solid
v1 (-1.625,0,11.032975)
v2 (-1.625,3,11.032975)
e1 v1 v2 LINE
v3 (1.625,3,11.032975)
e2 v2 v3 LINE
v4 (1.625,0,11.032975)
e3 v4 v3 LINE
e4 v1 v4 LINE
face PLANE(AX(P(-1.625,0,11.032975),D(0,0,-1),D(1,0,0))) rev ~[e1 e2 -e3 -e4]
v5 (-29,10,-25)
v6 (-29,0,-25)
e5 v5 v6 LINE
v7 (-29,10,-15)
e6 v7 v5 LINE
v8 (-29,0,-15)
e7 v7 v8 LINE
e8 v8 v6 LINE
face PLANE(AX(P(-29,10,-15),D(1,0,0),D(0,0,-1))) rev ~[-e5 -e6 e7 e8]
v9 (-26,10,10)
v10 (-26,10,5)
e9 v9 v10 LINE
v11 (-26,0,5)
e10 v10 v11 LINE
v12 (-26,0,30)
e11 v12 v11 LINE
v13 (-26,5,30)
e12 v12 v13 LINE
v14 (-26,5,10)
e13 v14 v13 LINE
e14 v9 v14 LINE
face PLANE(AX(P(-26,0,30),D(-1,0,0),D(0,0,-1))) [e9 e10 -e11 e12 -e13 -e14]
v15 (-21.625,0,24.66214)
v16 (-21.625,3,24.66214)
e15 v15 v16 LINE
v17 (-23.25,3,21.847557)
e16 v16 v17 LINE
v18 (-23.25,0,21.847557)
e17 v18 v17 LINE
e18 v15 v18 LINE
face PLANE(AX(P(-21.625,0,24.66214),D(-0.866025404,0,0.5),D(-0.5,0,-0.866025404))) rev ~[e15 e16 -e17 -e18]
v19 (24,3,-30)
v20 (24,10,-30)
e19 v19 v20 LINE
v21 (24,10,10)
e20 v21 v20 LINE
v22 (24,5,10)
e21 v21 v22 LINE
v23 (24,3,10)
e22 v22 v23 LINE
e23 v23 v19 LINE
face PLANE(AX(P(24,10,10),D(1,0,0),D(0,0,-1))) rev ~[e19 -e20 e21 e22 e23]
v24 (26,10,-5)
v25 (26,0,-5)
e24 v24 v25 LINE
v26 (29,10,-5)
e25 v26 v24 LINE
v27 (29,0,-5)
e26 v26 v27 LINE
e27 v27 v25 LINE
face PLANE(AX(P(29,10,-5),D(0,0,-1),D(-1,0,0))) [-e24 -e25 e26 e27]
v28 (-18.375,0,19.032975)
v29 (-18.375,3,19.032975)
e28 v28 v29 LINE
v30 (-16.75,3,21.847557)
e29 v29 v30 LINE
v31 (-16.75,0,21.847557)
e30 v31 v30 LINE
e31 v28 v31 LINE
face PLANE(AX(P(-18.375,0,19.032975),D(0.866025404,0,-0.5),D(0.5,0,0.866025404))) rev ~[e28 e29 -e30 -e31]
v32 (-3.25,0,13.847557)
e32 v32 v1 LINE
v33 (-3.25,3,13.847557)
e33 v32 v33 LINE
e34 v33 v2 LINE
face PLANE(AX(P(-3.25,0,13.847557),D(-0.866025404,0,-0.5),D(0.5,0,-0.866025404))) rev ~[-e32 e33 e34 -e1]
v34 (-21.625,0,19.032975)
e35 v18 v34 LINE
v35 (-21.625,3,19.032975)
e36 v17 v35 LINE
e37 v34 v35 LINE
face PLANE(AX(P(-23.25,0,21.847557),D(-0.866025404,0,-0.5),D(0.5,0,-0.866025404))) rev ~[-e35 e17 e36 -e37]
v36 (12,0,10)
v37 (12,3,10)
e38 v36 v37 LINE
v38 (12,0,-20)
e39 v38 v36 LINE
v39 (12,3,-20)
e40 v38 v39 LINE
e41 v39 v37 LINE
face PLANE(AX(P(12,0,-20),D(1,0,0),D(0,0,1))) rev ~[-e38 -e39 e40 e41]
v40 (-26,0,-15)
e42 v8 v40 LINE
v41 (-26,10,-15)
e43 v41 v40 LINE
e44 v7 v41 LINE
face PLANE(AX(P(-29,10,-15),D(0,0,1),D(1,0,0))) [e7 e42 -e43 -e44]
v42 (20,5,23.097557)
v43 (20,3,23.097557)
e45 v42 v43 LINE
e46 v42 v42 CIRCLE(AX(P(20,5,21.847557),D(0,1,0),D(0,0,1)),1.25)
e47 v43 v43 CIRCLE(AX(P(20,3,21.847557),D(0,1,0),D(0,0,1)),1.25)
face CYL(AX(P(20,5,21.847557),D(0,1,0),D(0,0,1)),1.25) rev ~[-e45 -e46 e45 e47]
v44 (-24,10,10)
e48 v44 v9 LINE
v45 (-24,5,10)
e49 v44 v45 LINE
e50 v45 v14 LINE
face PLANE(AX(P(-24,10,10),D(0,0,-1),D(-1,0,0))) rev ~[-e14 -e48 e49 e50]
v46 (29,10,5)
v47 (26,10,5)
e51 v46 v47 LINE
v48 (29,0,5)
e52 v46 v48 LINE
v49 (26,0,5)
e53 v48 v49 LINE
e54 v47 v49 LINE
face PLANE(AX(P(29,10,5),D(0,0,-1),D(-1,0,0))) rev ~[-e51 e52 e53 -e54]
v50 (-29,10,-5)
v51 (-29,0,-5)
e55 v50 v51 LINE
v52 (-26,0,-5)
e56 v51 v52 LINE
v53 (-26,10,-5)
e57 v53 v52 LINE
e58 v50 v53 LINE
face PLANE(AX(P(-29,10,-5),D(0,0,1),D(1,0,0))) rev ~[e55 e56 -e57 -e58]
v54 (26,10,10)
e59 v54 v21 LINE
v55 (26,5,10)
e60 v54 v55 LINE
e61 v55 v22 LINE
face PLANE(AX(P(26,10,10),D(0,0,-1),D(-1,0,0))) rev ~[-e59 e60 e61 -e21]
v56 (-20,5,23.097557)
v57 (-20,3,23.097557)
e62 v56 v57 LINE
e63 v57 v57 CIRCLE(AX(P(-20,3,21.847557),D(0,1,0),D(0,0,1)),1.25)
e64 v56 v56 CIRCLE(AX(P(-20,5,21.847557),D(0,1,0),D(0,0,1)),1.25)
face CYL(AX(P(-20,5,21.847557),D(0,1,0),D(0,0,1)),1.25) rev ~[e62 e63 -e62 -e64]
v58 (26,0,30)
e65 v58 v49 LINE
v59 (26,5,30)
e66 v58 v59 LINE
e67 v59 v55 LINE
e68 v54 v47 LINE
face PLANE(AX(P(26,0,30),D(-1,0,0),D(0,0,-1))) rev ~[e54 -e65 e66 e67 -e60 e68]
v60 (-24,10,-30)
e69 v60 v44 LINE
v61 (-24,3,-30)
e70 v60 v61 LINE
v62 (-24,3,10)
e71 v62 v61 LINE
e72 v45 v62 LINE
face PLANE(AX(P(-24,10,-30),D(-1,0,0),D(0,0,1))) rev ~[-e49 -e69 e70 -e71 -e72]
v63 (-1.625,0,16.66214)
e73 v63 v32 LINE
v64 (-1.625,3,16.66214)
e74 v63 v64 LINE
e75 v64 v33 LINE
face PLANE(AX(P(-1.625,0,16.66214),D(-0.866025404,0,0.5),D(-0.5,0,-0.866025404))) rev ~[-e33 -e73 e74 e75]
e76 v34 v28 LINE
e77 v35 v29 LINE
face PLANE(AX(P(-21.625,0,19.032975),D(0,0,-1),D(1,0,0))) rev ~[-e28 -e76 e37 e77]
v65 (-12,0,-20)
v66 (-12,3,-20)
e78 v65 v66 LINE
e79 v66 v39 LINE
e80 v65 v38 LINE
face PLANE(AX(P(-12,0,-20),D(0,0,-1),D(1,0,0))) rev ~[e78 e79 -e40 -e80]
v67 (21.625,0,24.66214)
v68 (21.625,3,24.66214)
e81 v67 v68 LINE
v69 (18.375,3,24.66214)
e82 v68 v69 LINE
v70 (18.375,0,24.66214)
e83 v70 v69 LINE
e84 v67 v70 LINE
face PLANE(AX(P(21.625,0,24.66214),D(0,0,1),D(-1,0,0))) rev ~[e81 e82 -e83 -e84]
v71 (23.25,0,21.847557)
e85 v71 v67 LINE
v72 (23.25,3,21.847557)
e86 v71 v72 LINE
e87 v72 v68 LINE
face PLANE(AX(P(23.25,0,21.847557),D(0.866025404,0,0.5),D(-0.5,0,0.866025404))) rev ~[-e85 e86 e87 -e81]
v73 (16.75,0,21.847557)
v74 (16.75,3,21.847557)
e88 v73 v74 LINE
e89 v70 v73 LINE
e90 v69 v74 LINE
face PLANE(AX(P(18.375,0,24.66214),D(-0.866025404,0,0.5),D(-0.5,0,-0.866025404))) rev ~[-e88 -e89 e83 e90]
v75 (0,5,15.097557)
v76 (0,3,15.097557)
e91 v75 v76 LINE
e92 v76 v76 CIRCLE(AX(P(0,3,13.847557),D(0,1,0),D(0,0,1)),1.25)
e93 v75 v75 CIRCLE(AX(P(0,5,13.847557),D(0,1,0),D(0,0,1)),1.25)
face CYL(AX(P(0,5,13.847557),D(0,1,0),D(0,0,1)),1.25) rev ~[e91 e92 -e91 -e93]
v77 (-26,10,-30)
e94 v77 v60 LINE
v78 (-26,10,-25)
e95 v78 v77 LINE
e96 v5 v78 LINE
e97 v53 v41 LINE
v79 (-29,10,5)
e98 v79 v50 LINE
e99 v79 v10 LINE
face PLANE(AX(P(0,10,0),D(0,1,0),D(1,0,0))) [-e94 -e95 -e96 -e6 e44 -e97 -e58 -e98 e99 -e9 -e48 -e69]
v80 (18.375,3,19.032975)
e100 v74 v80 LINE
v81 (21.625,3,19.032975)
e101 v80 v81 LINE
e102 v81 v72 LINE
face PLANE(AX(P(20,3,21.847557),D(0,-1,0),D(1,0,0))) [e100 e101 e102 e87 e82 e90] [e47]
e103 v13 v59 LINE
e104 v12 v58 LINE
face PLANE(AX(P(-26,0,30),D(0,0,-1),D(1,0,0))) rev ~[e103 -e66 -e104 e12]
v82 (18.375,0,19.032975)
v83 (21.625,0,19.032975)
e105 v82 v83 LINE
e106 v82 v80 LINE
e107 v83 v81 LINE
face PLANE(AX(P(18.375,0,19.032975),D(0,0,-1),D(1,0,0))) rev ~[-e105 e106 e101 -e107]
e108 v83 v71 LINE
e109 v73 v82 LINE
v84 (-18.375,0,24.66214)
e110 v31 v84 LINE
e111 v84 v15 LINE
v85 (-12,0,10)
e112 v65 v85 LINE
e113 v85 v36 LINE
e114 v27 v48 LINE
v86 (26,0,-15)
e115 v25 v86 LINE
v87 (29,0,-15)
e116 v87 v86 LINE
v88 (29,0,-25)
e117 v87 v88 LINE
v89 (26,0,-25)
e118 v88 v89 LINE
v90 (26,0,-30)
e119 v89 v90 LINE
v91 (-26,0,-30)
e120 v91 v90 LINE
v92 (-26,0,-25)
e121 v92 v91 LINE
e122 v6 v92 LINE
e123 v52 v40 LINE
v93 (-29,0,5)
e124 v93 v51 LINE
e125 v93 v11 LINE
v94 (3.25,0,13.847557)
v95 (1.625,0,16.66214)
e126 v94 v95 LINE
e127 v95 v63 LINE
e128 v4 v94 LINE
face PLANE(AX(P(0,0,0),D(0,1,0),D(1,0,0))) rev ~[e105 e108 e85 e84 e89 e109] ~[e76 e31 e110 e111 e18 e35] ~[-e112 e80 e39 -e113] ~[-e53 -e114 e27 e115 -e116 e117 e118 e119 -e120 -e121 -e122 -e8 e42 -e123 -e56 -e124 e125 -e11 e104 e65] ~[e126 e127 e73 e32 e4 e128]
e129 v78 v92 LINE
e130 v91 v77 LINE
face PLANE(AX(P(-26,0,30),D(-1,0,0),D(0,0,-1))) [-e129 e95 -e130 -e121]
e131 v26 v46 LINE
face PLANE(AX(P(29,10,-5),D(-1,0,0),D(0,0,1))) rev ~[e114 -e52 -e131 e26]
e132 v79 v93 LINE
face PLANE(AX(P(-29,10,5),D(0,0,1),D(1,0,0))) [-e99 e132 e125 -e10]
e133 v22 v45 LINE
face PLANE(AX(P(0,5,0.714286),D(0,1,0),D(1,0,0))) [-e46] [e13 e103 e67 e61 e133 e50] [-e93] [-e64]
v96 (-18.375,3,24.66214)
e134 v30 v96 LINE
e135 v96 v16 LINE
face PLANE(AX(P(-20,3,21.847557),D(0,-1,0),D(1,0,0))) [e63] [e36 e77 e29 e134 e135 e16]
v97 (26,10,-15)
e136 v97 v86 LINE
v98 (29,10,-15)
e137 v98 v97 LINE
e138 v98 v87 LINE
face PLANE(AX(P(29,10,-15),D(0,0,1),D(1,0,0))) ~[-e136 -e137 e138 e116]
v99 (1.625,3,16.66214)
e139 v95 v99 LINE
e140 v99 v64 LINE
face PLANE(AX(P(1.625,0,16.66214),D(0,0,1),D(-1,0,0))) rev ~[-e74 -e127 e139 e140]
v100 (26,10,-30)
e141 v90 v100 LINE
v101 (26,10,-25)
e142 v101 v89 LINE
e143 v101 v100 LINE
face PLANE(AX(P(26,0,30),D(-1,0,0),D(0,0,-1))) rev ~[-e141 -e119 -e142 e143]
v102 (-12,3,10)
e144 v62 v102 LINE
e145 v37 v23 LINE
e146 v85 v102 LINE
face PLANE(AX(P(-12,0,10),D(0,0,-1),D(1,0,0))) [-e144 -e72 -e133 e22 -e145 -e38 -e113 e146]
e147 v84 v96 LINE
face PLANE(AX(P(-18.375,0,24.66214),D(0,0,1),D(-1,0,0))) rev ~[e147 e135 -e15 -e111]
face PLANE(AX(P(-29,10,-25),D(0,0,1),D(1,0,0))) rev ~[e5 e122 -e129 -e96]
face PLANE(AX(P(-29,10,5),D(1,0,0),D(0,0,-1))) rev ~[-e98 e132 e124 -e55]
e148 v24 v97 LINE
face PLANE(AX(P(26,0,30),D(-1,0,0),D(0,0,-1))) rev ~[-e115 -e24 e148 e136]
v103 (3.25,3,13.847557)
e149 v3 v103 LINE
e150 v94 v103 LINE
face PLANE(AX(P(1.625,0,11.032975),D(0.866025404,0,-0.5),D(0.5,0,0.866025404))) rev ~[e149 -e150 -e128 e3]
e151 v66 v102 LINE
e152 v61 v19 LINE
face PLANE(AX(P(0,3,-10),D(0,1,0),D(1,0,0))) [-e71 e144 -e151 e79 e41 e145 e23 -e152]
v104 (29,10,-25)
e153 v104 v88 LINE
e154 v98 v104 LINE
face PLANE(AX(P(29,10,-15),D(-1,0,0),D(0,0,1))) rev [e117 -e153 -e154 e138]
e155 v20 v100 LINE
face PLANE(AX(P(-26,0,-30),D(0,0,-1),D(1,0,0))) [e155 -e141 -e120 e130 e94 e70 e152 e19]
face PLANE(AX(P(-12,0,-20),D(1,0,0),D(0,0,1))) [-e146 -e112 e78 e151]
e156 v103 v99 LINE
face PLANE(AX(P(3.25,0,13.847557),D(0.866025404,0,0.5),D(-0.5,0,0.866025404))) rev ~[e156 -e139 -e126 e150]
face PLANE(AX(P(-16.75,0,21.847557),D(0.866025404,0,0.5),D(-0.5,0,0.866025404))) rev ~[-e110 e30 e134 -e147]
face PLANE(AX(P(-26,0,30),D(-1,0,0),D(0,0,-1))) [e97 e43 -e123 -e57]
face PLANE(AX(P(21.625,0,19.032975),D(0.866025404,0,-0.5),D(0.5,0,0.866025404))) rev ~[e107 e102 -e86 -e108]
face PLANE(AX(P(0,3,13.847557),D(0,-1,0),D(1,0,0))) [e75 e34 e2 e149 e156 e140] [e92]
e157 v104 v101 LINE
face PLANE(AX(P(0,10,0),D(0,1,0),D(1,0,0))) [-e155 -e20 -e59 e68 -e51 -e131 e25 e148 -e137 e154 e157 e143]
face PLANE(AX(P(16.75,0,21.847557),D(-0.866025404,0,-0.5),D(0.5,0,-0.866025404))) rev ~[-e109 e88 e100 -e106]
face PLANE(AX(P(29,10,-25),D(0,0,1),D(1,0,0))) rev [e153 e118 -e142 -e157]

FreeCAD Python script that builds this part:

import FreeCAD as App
import Part
import Sketcher
Q = App.Units.Quantity


def add_polygon(sketch, points):
    """Adds a closed chain of lines whose ends are joined by coincident constraints."""
    first, n = sketch.GeometryCount, len(points)
    for a, b in zip(points, points[1:] + points[:1]):
        sketch.addGeometry(Part.LineSegment(App.Vector(*a, 0), App.Vector(*b, 0)), False)
    for i in range(n):
        sketch.addConstraint(Sketcher.Constraint("Coincident", first + i, 2, first + (i + 1) % n, 1))

doc = App.newDocument("Part")
body = doc.addObject("PartDesign::Body", "Body")

# Sketch on XZ plane
sketch1 = body.newObject("Sketcher::SketchObject", "Sketch")
sketch1.AttachmentSupport = (doc.getObject("XZ_Plane"), [""])
sketch1.MapMode = "FlatFace"
add_polygon(sketch1, [(-26, -30), (-26, 30), (26, 30), (26, -30)])  # lines 0-3
sketch1.addConstraint([
    Sketcher.Constraint("Vertical", 0),
    Sketcher.Constraint("Horizontal", 1),
    Sketcher.Constraint("Vertical", 2),
    Sketcher.Constraint("Horizontal", 3),
    Sketcher.Constraint("Symmetric", 0, 2, 2, 2, -1, 1),
    Sketcher.Constraint("DistanceX", 1, 1, 1, 2, Q("52 mm")),
    Sketcher.Constraint("DistanceY", 0, 1, 0, 2, Q("60 mm")),
])
pad1 = body.newObject("PartDesign::Pad", "Pad")
pad1.Profile = sketch1
pad1.Length = 10
pad1.Reversed = True

# Sketch on XZ plane
sketch2 = body.newObject("Sketcher::SketchObject", "Sketch001")
sketch2.AttachmentSupport = (doc.getObject("XZ_Plane"), [""])
sketch2.MapMode = "FlatFace"
sketch2.AttachmentOffset = App.Placement(App.Vector(0, 0, -10), App.Rotation())
add_polygon(sketch2, [(-26, 30), (26, 30), (26, 10), (24, 10), (24, -30), (-24, -30), (-24, 10), (-26, 10)])  # lines 0-7
sketch2.addConstraint([
    Sketcher.Constraint("Horizontal", 0),
    Sketcher.Constraint("Vertical", 1),
    Sketcher.Constraint("Horizontal", 2),
    Sketcher.Constraint("Vertical", 3),
    Sketcher.Constraint("Horizontal", 4),
    Sketcher.Constraint("Vertical", 5),
    Sketcher.Constraint("Horizontal", 6),
    Sketcher.Constraint("Vertical", 7),
    Sketcher.Constraint("Symmetric", 2, 2, 5, 2, -2),
    Sketcher.Constraint("Equal", 2, 6),
    Sketcher.Constraint("DistanceX", 0, 1, 0, 2, Q("52 mm")),
    Sketcher.Constraint("DistanceX", 2, 2, 2, 1, Q("2 mm")),
    Sketcher.Constraint("DistanceY", 1, 2, 1, 1, Q("20 mm")),
    Sketcher.Constraint("DistanceY", 3, 2, 3, 1, Q("40 mm")),
    Sketcher.Constraint("DistanceY", -1, 1, 0, 2, Q("30 mm")),
])
pocket1 = body.newObject("PartDesign::Pocket", "Pocket")
pocket1.Profile = sketch2
pocket1.Length = 5
pocket1.Reversed = True

# Sketch on XZ plane
sketch3 = body.newObject("Sketcher::SketchObject", "Sketch002")
sketch3.AttachmentSupport = (doc.getObject("XZ_Plane"), [""])
sketch3.MapMode = "FlatFace"
sketch3.AttachmentOffset = App.Placement(App.Vector(0, 0, -5), App.Rotation())
sketch3.addGeometry([
    Part.Circle(App.Vector(-20, 21.8, 0), App.Vector(0, 0, 1), 1.2),
    Part.Circle(App.Vector(0, 13.8, 0), App.Vector(0, 0, 1), 1.2),
    Part.Circle(App.Vector(20, 21.8, 0), App.Vector(0, 0, 1), 1.2),
], False)
sketch3.addConstraint([
    Sketcher.Constraint("Equal", 0, 1),
    Sketcher.Constraint("Equal", 1, 2),
    Sketcher.Constraint("Symmetric", 0, 3, 2, 3, -2),
    Sketcher.Constraint("PointOnObject", 1, 3, -2),
    Sketcher.Constraint("Diameter", 0, Q("2.5 mm")),
    Sketcher.Constraint("DistanceX", 0, 3, -1, 1, Q("20 mm")),
    Sketcher.Constraint("DistanceY", 1, 3, 0, 3, Q("8 mm")),
    Sketcher.Constraint("DistanceY", -1, 1, 0, 3, Q("21.847557 mm")),
])
pocket2 = body.newObject("PartDesign::Pocket", "Pocket001")
pocket2.Profile = sketch3
pocket2.Length = 5
pocket2.Reversed = True

# Sketch on XZ plane
sketch4 = body.newObject("Sketcher::SketchObject", "Sketch003")
sketch4.AttachmentSupport = (doc.getObject("XZ_Plane"), [""])
sketch4.MapMode = "FlatFace"
add_polygon(sketch4, [(-18.4, 24.7), (-21.6, 24.7), (-23.2, 21.8), (-21.6, 19), (-18.4, 19), (-16.8, 21.8)])  # lines 0-5
add_polygon(sketch4, [(1.6, 16.7), (-1.6, 16.7), (-3.2, 13.8), (-1.6, 11), (1.6, 11), (3.2, 13.8)])  # lines 6-11
add_polygon(sketch4, [(21.6, 24.7), (18.4, 24.7), (16.8, 21.8), (18.4, 19), (21.6, 19), (23.2, 21.8)])  # lines 12-17
sketch4.addConstraint([
    Sketcher.Constraint("Horizontal", 0),
    Sketcher.Constraint("Horizontal", 3),
    Sketcher.Constraint("Horizontal", 6),
    Sketcher.Constraint("Horizontal", 9),
    Sketcher.Constraint("Horizontal", 12),
    Sketcher.Constraint("Horizontal", 15),
    Sketcher.Constraint("Symmetric", 7, 2, 10, 2, -2),
    Sketcher.Constraint("Symmetric", 5, 2, 12, 2, -2),
    Sketcher.Constraint("Symmetric", 4, 2, 13, 2, -2),
    Sketcher.Constraint("Symmetric", 3, 2, 14, 2, -2),
    Sketcher.Constraint("Symmetric", 1, 2, 16, 2, -2),
    Sketcher.Constraint("Parallel", 1, 4),
    Sketcher.Constraint("Parallel", 2, 5),
    Sketcher.Constraint("Parallel", 4, 7),
    Sketcher.Constraint("Parallel", 5, 8),
    Sketcher.Constraint("Parallel", 7, 10),
    Sketcher.Constraint("Parallel", 8, 11),
    Sketcher.Constraint("Parallel", 10, 13),
    Sketcher.Constraint("Parallel", 13, 16),
    Sketcher.Constraint("Parallel", 14, 17),
    Sketcher.Constraint("Horizontal", 1, 2, 4, 2),
    Sketcher.Constraint("Vertical", 0, 2, 2, 2),
    Sketcher.Constraint("Vertical", 6, 2, 8, 2),
    Sketcher.Constraint("Equal", 3, 6),
    Sketcher.Constraint("Equal", 5, 7),
    Sketcher.Constraint("Angle", 1, Q("-120 deg")),
    Sketcher.Constraint("DistanceY", 6, 2, 5, 2, Q("8 mm")),
    Sketcher.Constraint("DistanceX", 2, 2, 6, 2, Q("20 mm")),
    Sketcher.Constraint("DistanceX", 0, 2, 0, 1, Q("3.25 mm")),
    Sketcher.Constraint("DistanceX", 1, 2, 4, 2, Q("6.5 mm")),
    Sketcher.Constraint("DistanceY", -1, 1, 0, 2, Q("24.66214 mm")),
])
pocket3 = body.newObject("PartDesign::Pocket", "Pocket002")
pocket3.Profile = sketch4
pocket3.Length = 3

# Sketch on XZ plane
sketch5 = body.newObject("Sketcher::SketchObject", "Sketch004")
sketch5.AttachmentSupport = (doc.getObject("XZ_Plane"), [""])
sketch5.MapMode = "FlatFace"
add_polygon(sketch5, [(-12, 10), (-12, -20), (12, -20), (12, 10)])  # lines 0-3
sketch5.addConstraint([
    Sketcher.Constraint("Vertical", 0),
    Sketcher.Constraint("Horizontal", 1),
    Sketcher.Constraint("Vertical", 2),
    Sketcher.Constraint("Horizontal", 3),
    Sketcher.Constraint("DistanceX", 1, 1, 1, 2, Q("24 mm")),
    Sketcher.Constraint("DistanceY", 0, 2, 0, 1, Q("30 mm")),
    Sketcher.Constraint("DistanceX", 0, 2, -1, 1, Q("12 mm")),
    Sketcher.Constraint("DistanceY", 0, 2, -1, 1, Q("20 mm")),
])
pocket4 = body.newObject("PartDesign::Pocket", "Pocket003")
pocket4.Profile = sketch5
pocket4.Type = "ThroughAll"

# Sketch on XZ plane
sketch6 = body.newObject("Sketcher::SketchObject", "Sketch005")
sketch6.AttachmentSupport = (doc.getObject("XZ_Plane"), [""])
sketch6.MapMode = "FlatFace"
sketch6.AttachmentOffset = App.Placement(App.Vector(0, 0, -10), App.Rotation())
add_polygon(sketch6, [(-29, -25), (-29, -15), (-26, -15), (-26, -25)])  # lines 0-3
sketch6.addConstraint([
    Sketcher.Constraint("Vertical", 0),
    Sketcher.Constraint("Horizontal", 1),
    Sketcher.Constraint("Vertical", 2),
    Sketcher.Constraint("Horizontal", 3),
    Sketcher.Constraint("DistanceX", 1, 1, 1, 2, Q("3 mm")),
    Sketcher.Constraint("DistanceY", 0, 1, 0, 2, Q("10 mm")),
    Sketcher.Constraint("DistanceX", 0, 2, -1, 1, Q("29 mm")),
    Sketcher.Constraint("DistanceY", 0, 2, -1, 1, Q("15 mm")),
])
pad2 = body.newObject("PartDesign::Pad", "Pad001")
pad2.Profile = sketch6
pad2.Length = 10
doc.recompute()

linearpattern = body.newObject("PartDesign::LinearPattern", "LinearPattern")
linearpattern.Originals = [pad2]
linearpattern.Direction = (doc.getObject("Z_Axis"), [""])
linearpattern.Mode = "offset"
linearpattern.Offset = 20
linearpattern.Occurrences = 2
body.Tip = linearpattern
doc.recompute()

mirrored = body.newObject("PartDesign::Mirrored", "Mirrored")
mirrored.Originals = [pad2]
mirrored.MirrorPlane = (doc.getObject("YZ_Plane"), [""])
body.Tip = mirrored

# Sketch on XZ plane
sketch7 = body.newObject("Sketcher::SketchObject", "Sketch006")
sketch7.AttachmentSupport = (doc.getObject("XZ_Plane"), [""])
sketch7.MapMode = "FlatFace"
sketch7.AttachmentOffset = App.Placement(App.Vector(0, 0, -10), App.Rotation())
add_polygon(sketch7, [(29, 5), (29, -5), (26, -5), (26, 5)])  # lines 0-3
sketch7.addConstraint([
    Sketcher.Constraint("Vertical", 0),
    Sketcher.Constraint("Horizontal", 1),
    Sketcher.Constraint("Vertical", 2),
    Sketcher.Constraint("Horizontal", 3),
    Sketcher.Constraint("DistanceX", 1, 2, 1, 1, Q("3 mm")),
    Sketcher.Constraint("DistanceY", 0, 2, 0, 1, Q("10 mm")),
    Sketcher.Constraint("DistanceX", -1, 1, 0, 2, Q("29 mm")),
    Sketcher.Constraint("DistanceY", 0, 2, -1, 1, Q("5 mm")),
])
pad3 = body.newObject("PartDesign::Pad", "Pad002")
pad3.Profile = sketch7
pad3.Length = 10

# Sketch on XZ plane
sketch8 = body.newObject("Sketcher::SketchObject", "Sketch007")
sketch8.AttachmentSupport = (doc.getObject("XZ_Plane"), [""])
sketch8.MapMode = "FlatFace"
sketch8.AttachmentOffset = App.Placement(App.Vector(0, 0, -5), App.Rotation())
add_polygon(sketch8, [(-24, -30), (-24, 10), (24, 10), (24, -30)])  # lines 0-3
sketch8.addConstraint([
    Sketcher.Constraint("Vertical", 0),
    Sketcher.Constraint("Horizontal", 1),
    Sketcher.Constraint("Vertical", 2),
    Sketcher.Constraint("Horizontal", 3),
    Sketcher.Constraint("DistanceX", 1, 1, 1, 2, Q("48 mm")),
    Sketcher.Constraint("DistanceY", 0, 1, 0, 2, Q("40 mm")),
    Sketcher.Constraint("DistanceX", 0, 2, -1, 1, Q("24 mm")),
    Sketcher.Constraint("DistanceY", -1, 1, 0, 2, Q("10 mm")),
])
pocket5 = body.newObject("PartDesign::Pocket", "Pocket004")
pocket5.Profile = sketch8
pocket5.Length = 2
pocket5.Reversed = True

doc.recompute()
